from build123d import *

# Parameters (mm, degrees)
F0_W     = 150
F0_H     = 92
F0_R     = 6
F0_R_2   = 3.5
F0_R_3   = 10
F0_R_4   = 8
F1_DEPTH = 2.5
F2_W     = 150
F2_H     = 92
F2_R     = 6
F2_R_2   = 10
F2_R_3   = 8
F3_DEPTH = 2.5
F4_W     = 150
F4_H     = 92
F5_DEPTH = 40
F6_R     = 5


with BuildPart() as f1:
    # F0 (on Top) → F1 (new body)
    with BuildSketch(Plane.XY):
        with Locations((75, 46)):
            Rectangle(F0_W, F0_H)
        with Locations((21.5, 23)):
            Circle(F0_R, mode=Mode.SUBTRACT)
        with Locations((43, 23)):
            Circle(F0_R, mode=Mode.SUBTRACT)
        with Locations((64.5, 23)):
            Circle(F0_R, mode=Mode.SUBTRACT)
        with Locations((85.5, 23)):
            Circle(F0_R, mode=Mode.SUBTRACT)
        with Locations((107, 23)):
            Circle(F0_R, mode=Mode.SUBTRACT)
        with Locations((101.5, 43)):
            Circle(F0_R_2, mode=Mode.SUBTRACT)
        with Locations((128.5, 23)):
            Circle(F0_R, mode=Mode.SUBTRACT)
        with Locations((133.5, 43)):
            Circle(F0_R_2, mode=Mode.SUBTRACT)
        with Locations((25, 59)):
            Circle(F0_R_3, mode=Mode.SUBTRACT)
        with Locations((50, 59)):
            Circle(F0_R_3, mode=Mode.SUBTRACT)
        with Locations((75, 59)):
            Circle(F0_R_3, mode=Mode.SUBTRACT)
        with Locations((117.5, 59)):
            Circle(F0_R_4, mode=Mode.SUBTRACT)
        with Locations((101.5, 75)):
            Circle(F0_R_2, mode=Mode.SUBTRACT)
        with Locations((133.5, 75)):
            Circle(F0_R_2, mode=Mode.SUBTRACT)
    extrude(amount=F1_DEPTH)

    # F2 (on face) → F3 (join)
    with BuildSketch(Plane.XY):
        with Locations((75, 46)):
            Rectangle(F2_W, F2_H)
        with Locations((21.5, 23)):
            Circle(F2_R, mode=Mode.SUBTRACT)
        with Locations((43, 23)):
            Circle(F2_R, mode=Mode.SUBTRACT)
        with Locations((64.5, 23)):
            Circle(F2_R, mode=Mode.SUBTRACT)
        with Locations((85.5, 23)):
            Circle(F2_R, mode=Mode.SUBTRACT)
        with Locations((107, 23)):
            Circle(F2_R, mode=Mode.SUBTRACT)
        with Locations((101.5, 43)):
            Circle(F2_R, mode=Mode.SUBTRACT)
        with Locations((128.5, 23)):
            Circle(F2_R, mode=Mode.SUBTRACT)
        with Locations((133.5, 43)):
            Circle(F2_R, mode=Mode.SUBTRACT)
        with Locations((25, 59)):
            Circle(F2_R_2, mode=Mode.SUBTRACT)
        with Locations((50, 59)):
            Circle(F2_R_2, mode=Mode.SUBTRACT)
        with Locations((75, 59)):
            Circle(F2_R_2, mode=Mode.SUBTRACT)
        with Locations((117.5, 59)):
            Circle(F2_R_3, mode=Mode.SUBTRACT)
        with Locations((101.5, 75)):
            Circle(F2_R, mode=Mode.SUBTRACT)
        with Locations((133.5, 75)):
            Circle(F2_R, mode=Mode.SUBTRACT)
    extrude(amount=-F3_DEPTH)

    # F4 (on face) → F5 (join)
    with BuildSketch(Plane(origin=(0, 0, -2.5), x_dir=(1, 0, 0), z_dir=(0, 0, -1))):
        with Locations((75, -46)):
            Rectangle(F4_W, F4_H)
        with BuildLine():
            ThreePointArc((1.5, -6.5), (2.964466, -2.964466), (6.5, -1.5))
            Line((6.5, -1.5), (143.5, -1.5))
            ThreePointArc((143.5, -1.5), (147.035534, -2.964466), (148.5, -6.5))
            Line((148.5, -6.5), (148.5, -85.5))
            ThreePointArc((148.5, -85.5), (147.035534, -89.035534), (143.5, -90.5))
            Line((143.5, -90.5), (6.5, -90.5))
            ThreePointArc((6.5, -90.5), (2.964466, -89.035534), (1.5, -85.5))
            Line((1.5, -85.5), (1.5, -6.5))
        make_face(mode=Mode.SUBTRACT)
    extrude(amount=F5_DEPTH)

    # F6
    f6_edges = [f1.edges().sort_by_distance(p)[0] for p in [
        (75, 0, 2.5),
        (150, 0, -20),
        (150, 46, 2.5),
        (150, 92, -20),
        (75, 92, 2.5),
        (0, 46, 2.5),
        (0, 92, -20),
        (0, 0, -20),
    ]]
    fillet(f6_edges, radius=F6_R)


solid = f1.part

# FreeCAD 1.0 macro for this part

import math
import FreeCAD as App
import Part
import Sketcher


def edges_at(feature, points):
    """Names of the edges that pass closest to the given points."""
    edges = feature.Shape.Edges
    near = lambda p: min(range(len(edges)), key=lambda i: edges[i].distToShape(Part.Vertex(*p))[0])
    return sorted({f"Edge{near(p) + 1}" for p in points})

doc = App.newDocument("Part")
body = doc.addObject("PartDesign::Body", "Body")

sketch1 = body.newObject("Sketcher::SketchObject", "Sketch")
sketch1.AttachmentSupport = (doc.getObject("XY_Plane"), [""])
sketch1.MapMode = "FlatFace"
sketch1.addGeometry(Part.LineSegment(App.Vector(0, 92, 0), App.Vector(0, 0, 0)), False)
sketch1.addGeometry(Part.LineSegment(App.Vector(0, 0, 0), App.Vector(150, 0, 0)), False)
sketch1.addGeometry(Part.LineSegment(App.Vector(150, 0, 0), App.Vector(150, 92, 0)), False)
sketch1.addGeometry(Part.LineSegment(App.Vector(150, 92, 0), App.Vector(0, 92, 0)), False)
sketch1.addGeometry(Part.Circle(App.Vector(21.5, 23, 0), App.Vector(0, 0, 1), 6), False)
sketch1.addGeometry(Part.Circle(App.Vector(43, 23, 0), App.Vector(0, 0, 1), 6), False)
sketch1.addGeometry(Part.Circle(App.Vector(64.5, 23, 0), App.Vector(0, 0, 1), 6), False)
sketch1.addGeometry(Part.Circle(App.Vector(85.5, 23, 0), App.Vector(0, 0, 1), 6), False)
sketch1.addGeometry(Part.Circle(App.Vector(107, 23, 0), App.Vector(0, 0, 1), 6), False)
sketch1.addGeometry(Part.Circle(App.Vector(128.5, 23, 0), App.Vector(0, 0, 1), 6), False)
sketch1.addGeometry(Part.Circle(App.Vector(101.5, 43, 0), App.Vector(0, 0, 1), 3.5), False)
sketch1.addGeometry(Part.Circle(App.Vector(133.5, 43, 0), App.Vector(0, 0, 1), 3.5), False)
sketch1.addGeometry(Part.Circle(App.Vector(25, 59, 0), App.Vector(0, 0, 1), 10), False)
sketch1.addGeometry(Part.Circle(App.Vector(50, 59, 0), App.Vector(0, 0, 1), 10), False)
sketch1.addGeometry(Part.Circle(App.Vector(75, 59, 0), App.Vector(0, 0, 1), 10), False)
sketch1.addGeometry(Part.Circle(App.Vector(117.5, 59, 0), App.Vector(0, 0, 1), 8), False)
sketch1.addGeometry(Part.Circle(App.Vector(101.5, 75, 0), App.Vector(0, 0, 1), 3.5), False)
sketch1.addGeometry(Part.Circle(App.Vector(133.5, 75, 0), App.Vector(0, 0, 1), 3.5), False)
sketch1.addConstraint(Sketcher.Constraint("Coincident", 0, 2, 1, 1))
sketch1.addConstraint(Sketcher.Constraint("Coincident", 1, 2, 2, 1))
sketch1.addConstraint(Sketcher.Constraint("Coincident", 2, 2, 3, 1))
sketch1.addConstraint(Sketcher.Constraint("Coincident", 3, 2, 0, 1))
sketch1.addConstraint(Sketcher.Constraint("Vertical", 0))
sketch1.addConstraint(Sketcher.Constraint("Horizontal", 1))
sketch1.addConstraint(Sketcher.Constraint("Vertical", 2))
sketch1.addConstraint(Sketcher.Constraint("Horizontal", 3))
sketch1.addConstraint(Sketcher.Constraint("Coincident", 0, 2, -1, 1))
sketch1.addConstraint(Sketcher.Constraint("Equal", 4, 5))
sketch1.addConstraint(Sketcher.Constraint("Equal", 5, 6))
sketch1.addConstraint(Sketcher.Constraint("Equal", 6, 7))
sketch1.addConstraint(Sketcher.Constraint("Equal", 7, 8))
sketch1.addConstraint(Sketcher.Constraint("Equal", 8, 9))
sketch1.addConstraint(Sketcher.Constraint("Equal", 10, 11))
sketch1.addConstraint(Sketcher.Constraint("Equal", 12, 13))
sketch1.addConstraint(Sketcher.Constraint("Equal", 13, 14))
sketch1.addConstraint(Sketcher.Constraint("Equal", 11, 16))
sketch1.addConstraint(Sketcher.Constraint("Equal", 16, 17))
sketch1.addConstraint(Sketcher.Constraint("Horizontal", 4, 3, 5, 3))
sketch1.addConstraint(Sketcher.Constraint("Horizontal", 5, 3, 6, 3))
sketch1.addConstraint(Sketcher.Constraint("Horizontal", 6, 3, 7, 3))
sketch1.addConstraint(Sketcher.Constraint("Horizontal", 7, 3, 8, 3))
sketch1.addConstraint(Sketcher.Constraint("Horizontal", 8, 3, 9, 3))
sketch1.addConstraint(Sketcher.Constraint("Horizontal", 10, 3, 11, 3))
sketch1.addConstraint(Sketcher.Constraint("Horizontal", 12, 3, 13, 3))
sketch1.addConstraint(Sketcher.Constraint("Horizontal", 13, 3, 14, 3))
sketch1.addConstraint(Sketcher.Constraint("Horizontal", 14, 3, 15, 3))
sketch1.addConstraint(Sketcher.Constraint("Horizontal", 16, 3, 17, 3))
sketch1.addConstraint(Sketcher.Constraint("Vertical", 10, 3, 16, 3))
sketch1.addConstraint(Sketcher.Constraint("Vertical", 11, 3, 17, 3))
sketch1.addConstraint(Sketcher.Constraint("Diameter", 4, 12.0))
sketch1.addConstraint(Sketcher.Constraint("Diameter", 10, 7.0))
sketch1.addConstraint(Sketcher.Constraint("Diameter", 12, 20.0))
sketch1.addConstraint(Sketcher.Constraint("Diameter", 15, 16.0))
sketch1.addConstraint(Sketcher.Constraint("DistanceX", 1, 1, 1, 2, 150.0))
sketch1.addConstraint(Sketcher.Constraint("DistanceY", 0, 2, 0, 1, 92.0))
sketch1.addConstraint(Sketcher.Constraint("DistanceY", -1, 1, 4, 3, 23.0))
sketch1.addConstraint(Sketcher.Constraint("DistanceX", -1, 1, 5, 3, 43.0))
sketch1.addConstraint(Sketcher.Constraint("DistanceX", -1, 1, 8, 3, 107.0))
sketch1.addConstraint(Sketcher.Constraint("DistanceY", -1, 1, 10, 3, 43.0))
sketch1.addConstraint(Sketcher.Constraint("DistanceX", -1, 1, 12, 3, 25.0))
sketch1.addConstraint(Sketcher.Constraint("DistanceY", -1, 1, 12, 3, 59.0))
sketch1.addConstraint(Sketcher.Constraint("DistanceX", -1, 1, 13, 3, 50.0))
sketch1.addConstraint(Sketcher.Constraint("DistanceX", -1, 1, 14, 3, 75.0))
sketch1.addConstraint(Sketcher.Constraint("DistanceY", -1, 1, 16, 3, 75.0))
sketch1.addConstraint(Sketcher.Constraint("DistanceX", 4, 3, 6, 3, 43.0))
sketch1.addConstraint(Sketcher.Constraint("DistanceX", 6, 3, 7, 3, 21.0))
sketch1.addConstraint(Sketcher.Constraint("DistanceX", 7, 3, 9, 3, 43.0))
sketch1.addConstraint(Sketcher.Constraint("DistanceX", 7, 3, 10, 3, 16.0))
sketch1.addConstraint(Sketcher.Constraint("DistanceX", 9, 3, 11, 3, 5.0))
sketch1.addConstraint(Sketcher.Constraint("DistanceX", 10, 3, 15, 3, 16.0))
sketch1.addConstraint(Sketcher.Constraint("DistanceX", -1, 1, 4, 3, 21.5))
pad1 = body.newObject("PartDesign::Pad", "Pad")
pad1.Profile = sketch1
pad1.Length = 2.5

sketch2 = body.newObject("Sketcher::SketchObject", "Sketch001")
sketch2.AttachmentSupport = (doc.getObject("XY_Plane"), [""])
sketch2.MapMode = "FlatFace"
sketch2.addGeometry(Part.LineSegment(App.Vector(0, 92, 0), App.Vector(0, 0, 0)), False)
sketch2.addGeometry(Part.LineSegment(App.Vector(0, 0, 0), App.Vector(150, 0, 0)), False)
sketch2.addGeometry(Part.LineSegment(App.Vector(150, 0, 0), App.Vector(150, 92, 0)), False)
sketch2.addGeometry(Part.LineSegment(App.Vector(150, 92, 0), App.Vector(0, 92, 0)), False)
sketch2.addGeometry(Part.Circle(App.Vector(22, 23, 0), App.Vector(0, 0, 1), 6), False)
sketch2.addGeometry(Part.Circle(App.Vector(43, 23, 0), App.Vector(0, 0, 1), 6), False)
sketch2.addGeometry(Part.Circle(App.Vector(64, 23, 0), App.Vector(0, 0, 1), 6), False)
sketch2.addGeometry(Part.Circle(App.Vector(86, 23, 0), App.Vector(0, 0, 1), 6), False)
sketch2.addGeometry(Part.Circle(App.Vector(107, 23, 0), App.Vector(0, 0, 1), 6), False)
sketch2.addGeometry(Part.Circle(App.Vector(128, 23, 0), App.Vector(0, 0, 1), 6), False)
sketch2.addGeometry(Part.Circle(App.Vector(102, 43, 0), App.Vector(0, 0, 1), 6), False)
sketch2.addGeometry(Part.Circle(App.Vector(134, 43, 0), App.Vector(0, 0, 1), 6), False)
sketch2.addGeometry(Part.Circle(App.Vector(25, 59, 0), App.Vector(0, 0, 1), 10), False)
sketch2.addGeometry(Part.Circle(App.Vector(50, 59, 0), App.Vector(0, 0, 1), 10), False)
sketch2.addGeometry(Part.Circle(App.Vector(75, 59, 0), App.Vector(0, 0, 1), 10), False)
sketch2.addGeometry(Part.Circle(App.Vector(118, 59, 0), App.Vector(0, 0, 1), 8), False)
sketch2.addGeometry(Part.Circle(App.Vector(102, 75, 0), App.Vector(0, 0, 1), 6), False)
sketch2.addGeometry(Part.Circle(App.Vector(134, 75, 0), App.Vector(0, 0, 1), 6), False)
sketch2.addConstraint(Sketcher.Constraint("Coincident", 0, 2, 1, 1))
sketch2.addConstraint(Sketcher.Constraint("Coincident", 1, 2, 2, 1))
sketch2.addConstraint(Sketcher.Constraint("Coincident", 2, 2, 3, 1))
sketch2.addConstraint(Sketcher.Constraint("Coincident", 3, 2, 0, 1))
sketch2.addConstraint(Sketcher.Constraint("Vertical", 0))
sketch2.addConstraint(Sketcher.Constraint("Horizontal", 1))
sketch2.addConstraint(Sketcher.Constraint("Vertical", 2))
sketch2.addConstraint(Sketcher.Constraint("Horizontal", 3))
sketch2.addConstraint(Sketcher.Constraint("Coincident", 0, 2, -1, 1))
sketch2.addConstraint(Sketcher.Constraint("Equal", 4, 5))
sketch2.addConstraint(Sketcher.Constraint("Equal", 5, 6))
sketch2.addConstraint(Sketcher.Constraint("Equal", 6, 7))
sketch2.addConstraint(Sketcher.Constraint("Equal", 7, 8))
sketch2.addConstraint(Sketcher.Constraint("Equal", 8, 9))
sketch2.addConstraint(Sketcher.Constraint("Equal", 9, 10))
sketch2.addConstraint(Sketcher.Constraint("Equal", 10, 11))
sketch2.addConstraint(Sketcher.Constraint("Equal", 12, 13))
sketch2.addConstraint(Sketcher.Constraint("Equal", 13, 14))
sketch2.addConstraint(Sketcher.Constraint("Equal", 11, 16))
sketch2.addConstraint(Sketcher.Constraint("Equal", 16, 17))
sketch2.addConstraint(Sketcher.Constraint("Horizontal", 4, 3, 5, 3))
sketch2.addConstraint(Sketcher.Constraint("Horizontal", 5, 3, 6, 3))
sketch2.addConstraint(Sketcher.Constraint("Horizontal", 6, 3, 7, 3))
sketch2.addConstraint(Sketcher.Constraint("Horizontal", 7, 3, 8, 3))
sketch2.addConstraint(Sketcher.Constraint("Horizontal", 8, 3, 9, 3))
sketch2.addConstraint(Sketcher.Constraint("Horizontal", 10, 3, 11, 3))
sketch2.addConstraint(Sketcher.Constraint("Horizontal", 12, 3, 13, 3))
sketch2.addConstraint(Sketcher.Constraint("Horizontal", 13, 3, 14, 3))
sketch2.addConstraint(Sketcher.Constraint("Horizontal", 14, 3, 15, 3))
sketch2.addConstraint(Sketcher.Constraint("Horizontal", 16, 3, 17, 3))
sketch2.addConstraint(Sketcher.Constraint("Vertical", 10, 3, 16, 3))
sketch2.addConstraint(Sketcher.Constraint("Vertical", 11, 3, 17, 3))
sketch2.addConstraint(Sketcher.Constraint("Diameter", 4, 12.0))
sketch2.addConstraint(Sketcher.Constraint("Diameter", 12, 20.0))
sketch2.addConstraint(Sketcher.Constraint("Diameter", 15, 16.0))
sketch2.addConstraint(Sketcher.Constraint("DistanceX", 1, 1, 1, 2, 150.0))
sketch2.addConstraint(Sketcher.Constraint("DistanceY", 0, 2, 0, 1, 92.0))
sketch2.addConstraint(Sketcher.Constraint("DistanceY", -1, 1, 4, 3, 23.0))
sketch2.addConstraint(Sketcher.Constraint("DistanceX", -1, 1, 5, 3, 43.0))
sketch2.addConstraint(Sketcher.Constraint("DistanceX", -1, 1, 8, 3, 107.0))
sketch2.addConstraint(Sketcher.Constraint("DistanceY", -1, 1, 10, 3, 43.0))
sketch2.addConstraint(Sketcher.Constraint("DistanceX", -1, 1, 12, 3, 25.0))
sketch2.addConstraint(Sketcher.Constraint("DistanceY", -1, 1, 12, 3, 59.0))
sketch2.addConstraint(Sketcher.Constraint("DistanceX", -1, 1, 13, 3, 50.0))
sketch2.addConstraint(Sketcher.Constraint("DistanceX", -1, 1, 14, 3, 75.0))
sketch2.addConstraint(Sketcher.Constraint("DistanceY", -1, 1, 16, 3, 75.0))
sketch2.addConstraint(Sketcher.Constraint("DistanceX", 4, 3, 6, 3, 43.0))
sketch2.addConstraint(Sketcher.Constraint("DistanceX", 6, 3, 7, 3, 21.0))
sketch2.addConstraint(Sketcher.Constraint("DistanceX", 7, 3, 9, 3, 43.0))
sketch2.addConstraint(Sketcher.Constraint("DistanceX", 7, 3, 10, 3, 16.0))
sketch2.addConstraint(Sketcher.Constraint("DistanceX", 9, 3, 11, 3, 5.0))
sketch2.addConstraint(Sketcher.Constraint("DistanceX", 10, 3, 15, 3, 16.0))
sketch2.addConstraint(Sketcher.Constraint("DistanceX", -1, 1, 4, 3, 21.5))
pad2 = body.newObject("PartDesign::Pad", "Pad001")
pad2.Profile = sketch2
pad2.Length = 2.5
pad2.Reversed = True

sketch3 = body.newObject("Sketcher::SketchObject", "Sketch002")
sketch3.AttachmentSupport = (doc.getObject("XY_Plane"), [""])
sketch3.MapMode = "FlatFace"
sketch3.AttachmentOffset = App.Placement(App.Vector(0, 0, -2.5), App.Rotation())
sketch3.addGeometry(Part.LineSegment(App.Vector(0, 0, 0), App.Vector(0, 92, 0)), False)
sketch3.addGeometry(Part.LineSegment(App.Vector(0, 92, 0), App.Vector(150, 92, 0)), False)
sketch3.addGeometry(Part.LineSegment(App.Vector(150, 92, 0), App.Vector(150, 0, 0)), False)
sketch3.addGeometry(Part.LineSegment(App.Vector(150, 0, 0), App.Vector(0, 0, 0)), False)
sketch3.addGeometry(Part.LineSegment(App.Vector(1.5, 85.5, 0), App.Vector(1.5, 6.5, 0)), False)
sketch3.addGeometry(Part.ArcOfCircle(Part.Circle(App.Vector(6.5, 6.5, 0), App.Vector(0, 0, 1), 5), math.radians(180), math.radians(270)), False)
sketch3.addGeometry(Part.LineSegment(App.Vector(6.5, 1.5, 0), App.Vector(143.5, 1.5, 0)), False)
sketch3.addGeometry(Part.ArcOfCircle(Part.Circle(App.Vector(143.5, 6.5, 0), App.Vector(0, 0, 1), 5), math.radians(-90), math.radians(0)), False)
sketch3.addGeometry(Part.LineSegment(App.Vector(148.5, 6.5, 0), App.Vector(148.5, 85.5, 0)), False)
sketch3.addGeometry(Part.ArcOfCircle(Part.Circle(App.Vector(143.5, 85.5, 0), App.Vector(0, 0, 1), 5), math.radians(0), math.radians(90)), False)
sketch3.addGeometry(Part.LineSegment(App.Vector(143.5, 90.5, 0), App.Vector(6.5, 90.5, 0)), False)
sketch3.addGeometry(Part.ArcOfCircle(Part.Circle(App.Vector(6.5, 85.5, 0), App.Vector(0, 0, 1), 5), math.radians(90), math.radians(180)), False)
sketch3.addConstraint(Sketcher.Constraint("Coincident", 0, 2, 1, 1))
sketch3.addConstraint(Sketcher.Constraint("Coincident", 1, 2, 2, 1))
sketch3.addConstraint(Sketcher.Constraint("Coincident", 2, 2, 3, 1))
sketch3.addConstraint(Sketcher.Constraint("Coincident", 3, 2, 0, 1))
sketch3.addConstraint(Sketcher.Constraint("Tangent", 4, 2, 5, 1))
sketch3.addConstraint(Sketcher.Constraint("Tangent", 5, 2, 6, 1))
sketch3.addConstraint(Sketcher.Constraint("Tangent", 6, 2, 7, 1))
sketch3.addConstraint(Sketcher.Constraint("Tangent", 7, 2, 8, 1))
sketch3.addConstraint(Sketcher.Constraint("Tangent", 8, 2, 9, 1))
sketch3.addConstraint(Sketcher.Constraint("Tangent", 9, 2, 10, 1))
sketch3.addConstraint(Sketcher.Constraint("Tangent", 10, 2, 11, 1))
sketch3.addConstraint(Sketcher.Constraint("Tangent", 11, 2, 4, 1))
sketch3.addConstraint(Sketcher.Constraint("Vertical", 0))
sketch3.addConstraint(Sketcher.Constraint("Horizontal", 1))
sketch3.addConstraint(Sketcher.Constraint("Vertical", 2))
sketch3.addConstraint(Sketcher.Constraint("Horizontal", 3))
sketch3.addConstraint(Sketcher.Constraint("Vertical", 4))
sketch3.addConstraint(Sketcher.Constraint("Horizontal", 6))
sketch3.addConstraint(Sketcher.Constraint("Vertical", 8))
sketch3.addConstraint(Sketcher.Constraint("Horizontal", 10))
sketch3.addConstraint(Sketcher.Constraint("Coincident", 3, 2, -1, 1))
sketch3.addConstraint(Sketcher.Constraint("Equal", 5, 7))
sketch3.addConstraint(Sketcher.Constraint("Equal", 7, 9))
sketch3.addConstraint(Sketcher.Constraint("Equal", 9, 11))
sketch3.addConstraint(Sketcher.Constraint("Radius", 5, 5.0))
sketch3.addConstraint(Sketcher.Constraint("DistanceX", 1, 1, 1, 2, 150.0))
sketch3.addConstraint(Sketcher.Constraint("DistanceX", 6, 1, 6, 2, 137.0))
sketch3.addConstraint(Sketcher.Constraint("DistanceY", 0, 1, 0, 2, 92.0))
sketch3.addConstraint(Sketcher.Constraint("DistanceY", 4, 2, 4, 1, 79.0))
sketch3.addConstraint(Sketcher.Constraint("DistanceX", -1, 1, 5, 3, 6.5))
sketch3.addConstraint(Sketcher.Constraint("DistanceY", -1, 1, 5, 3, 6.5))
pad3 = body.newObject("PartDesign::Pad", "Pad002")
pad3.Profile = sketch3
pad3.Length = 40
pad3.Reversed = True
doc.recompute()

fillet = body.newObject("PartDesign::Fillet", "Fillet")
fillet.Base = (pad3, edges_at(pad3, [
    (75, 0, 2.5),
    (150, 0, -20),
    (150, 46, 2.5),
    (150, 92, -20),
    (75, 92, 2.5),
    (0, 46, 2.5),
    (0, 92, -20),
    (0, 0, -20),
]))
fillet.Radius = 5

doc.recompute()
